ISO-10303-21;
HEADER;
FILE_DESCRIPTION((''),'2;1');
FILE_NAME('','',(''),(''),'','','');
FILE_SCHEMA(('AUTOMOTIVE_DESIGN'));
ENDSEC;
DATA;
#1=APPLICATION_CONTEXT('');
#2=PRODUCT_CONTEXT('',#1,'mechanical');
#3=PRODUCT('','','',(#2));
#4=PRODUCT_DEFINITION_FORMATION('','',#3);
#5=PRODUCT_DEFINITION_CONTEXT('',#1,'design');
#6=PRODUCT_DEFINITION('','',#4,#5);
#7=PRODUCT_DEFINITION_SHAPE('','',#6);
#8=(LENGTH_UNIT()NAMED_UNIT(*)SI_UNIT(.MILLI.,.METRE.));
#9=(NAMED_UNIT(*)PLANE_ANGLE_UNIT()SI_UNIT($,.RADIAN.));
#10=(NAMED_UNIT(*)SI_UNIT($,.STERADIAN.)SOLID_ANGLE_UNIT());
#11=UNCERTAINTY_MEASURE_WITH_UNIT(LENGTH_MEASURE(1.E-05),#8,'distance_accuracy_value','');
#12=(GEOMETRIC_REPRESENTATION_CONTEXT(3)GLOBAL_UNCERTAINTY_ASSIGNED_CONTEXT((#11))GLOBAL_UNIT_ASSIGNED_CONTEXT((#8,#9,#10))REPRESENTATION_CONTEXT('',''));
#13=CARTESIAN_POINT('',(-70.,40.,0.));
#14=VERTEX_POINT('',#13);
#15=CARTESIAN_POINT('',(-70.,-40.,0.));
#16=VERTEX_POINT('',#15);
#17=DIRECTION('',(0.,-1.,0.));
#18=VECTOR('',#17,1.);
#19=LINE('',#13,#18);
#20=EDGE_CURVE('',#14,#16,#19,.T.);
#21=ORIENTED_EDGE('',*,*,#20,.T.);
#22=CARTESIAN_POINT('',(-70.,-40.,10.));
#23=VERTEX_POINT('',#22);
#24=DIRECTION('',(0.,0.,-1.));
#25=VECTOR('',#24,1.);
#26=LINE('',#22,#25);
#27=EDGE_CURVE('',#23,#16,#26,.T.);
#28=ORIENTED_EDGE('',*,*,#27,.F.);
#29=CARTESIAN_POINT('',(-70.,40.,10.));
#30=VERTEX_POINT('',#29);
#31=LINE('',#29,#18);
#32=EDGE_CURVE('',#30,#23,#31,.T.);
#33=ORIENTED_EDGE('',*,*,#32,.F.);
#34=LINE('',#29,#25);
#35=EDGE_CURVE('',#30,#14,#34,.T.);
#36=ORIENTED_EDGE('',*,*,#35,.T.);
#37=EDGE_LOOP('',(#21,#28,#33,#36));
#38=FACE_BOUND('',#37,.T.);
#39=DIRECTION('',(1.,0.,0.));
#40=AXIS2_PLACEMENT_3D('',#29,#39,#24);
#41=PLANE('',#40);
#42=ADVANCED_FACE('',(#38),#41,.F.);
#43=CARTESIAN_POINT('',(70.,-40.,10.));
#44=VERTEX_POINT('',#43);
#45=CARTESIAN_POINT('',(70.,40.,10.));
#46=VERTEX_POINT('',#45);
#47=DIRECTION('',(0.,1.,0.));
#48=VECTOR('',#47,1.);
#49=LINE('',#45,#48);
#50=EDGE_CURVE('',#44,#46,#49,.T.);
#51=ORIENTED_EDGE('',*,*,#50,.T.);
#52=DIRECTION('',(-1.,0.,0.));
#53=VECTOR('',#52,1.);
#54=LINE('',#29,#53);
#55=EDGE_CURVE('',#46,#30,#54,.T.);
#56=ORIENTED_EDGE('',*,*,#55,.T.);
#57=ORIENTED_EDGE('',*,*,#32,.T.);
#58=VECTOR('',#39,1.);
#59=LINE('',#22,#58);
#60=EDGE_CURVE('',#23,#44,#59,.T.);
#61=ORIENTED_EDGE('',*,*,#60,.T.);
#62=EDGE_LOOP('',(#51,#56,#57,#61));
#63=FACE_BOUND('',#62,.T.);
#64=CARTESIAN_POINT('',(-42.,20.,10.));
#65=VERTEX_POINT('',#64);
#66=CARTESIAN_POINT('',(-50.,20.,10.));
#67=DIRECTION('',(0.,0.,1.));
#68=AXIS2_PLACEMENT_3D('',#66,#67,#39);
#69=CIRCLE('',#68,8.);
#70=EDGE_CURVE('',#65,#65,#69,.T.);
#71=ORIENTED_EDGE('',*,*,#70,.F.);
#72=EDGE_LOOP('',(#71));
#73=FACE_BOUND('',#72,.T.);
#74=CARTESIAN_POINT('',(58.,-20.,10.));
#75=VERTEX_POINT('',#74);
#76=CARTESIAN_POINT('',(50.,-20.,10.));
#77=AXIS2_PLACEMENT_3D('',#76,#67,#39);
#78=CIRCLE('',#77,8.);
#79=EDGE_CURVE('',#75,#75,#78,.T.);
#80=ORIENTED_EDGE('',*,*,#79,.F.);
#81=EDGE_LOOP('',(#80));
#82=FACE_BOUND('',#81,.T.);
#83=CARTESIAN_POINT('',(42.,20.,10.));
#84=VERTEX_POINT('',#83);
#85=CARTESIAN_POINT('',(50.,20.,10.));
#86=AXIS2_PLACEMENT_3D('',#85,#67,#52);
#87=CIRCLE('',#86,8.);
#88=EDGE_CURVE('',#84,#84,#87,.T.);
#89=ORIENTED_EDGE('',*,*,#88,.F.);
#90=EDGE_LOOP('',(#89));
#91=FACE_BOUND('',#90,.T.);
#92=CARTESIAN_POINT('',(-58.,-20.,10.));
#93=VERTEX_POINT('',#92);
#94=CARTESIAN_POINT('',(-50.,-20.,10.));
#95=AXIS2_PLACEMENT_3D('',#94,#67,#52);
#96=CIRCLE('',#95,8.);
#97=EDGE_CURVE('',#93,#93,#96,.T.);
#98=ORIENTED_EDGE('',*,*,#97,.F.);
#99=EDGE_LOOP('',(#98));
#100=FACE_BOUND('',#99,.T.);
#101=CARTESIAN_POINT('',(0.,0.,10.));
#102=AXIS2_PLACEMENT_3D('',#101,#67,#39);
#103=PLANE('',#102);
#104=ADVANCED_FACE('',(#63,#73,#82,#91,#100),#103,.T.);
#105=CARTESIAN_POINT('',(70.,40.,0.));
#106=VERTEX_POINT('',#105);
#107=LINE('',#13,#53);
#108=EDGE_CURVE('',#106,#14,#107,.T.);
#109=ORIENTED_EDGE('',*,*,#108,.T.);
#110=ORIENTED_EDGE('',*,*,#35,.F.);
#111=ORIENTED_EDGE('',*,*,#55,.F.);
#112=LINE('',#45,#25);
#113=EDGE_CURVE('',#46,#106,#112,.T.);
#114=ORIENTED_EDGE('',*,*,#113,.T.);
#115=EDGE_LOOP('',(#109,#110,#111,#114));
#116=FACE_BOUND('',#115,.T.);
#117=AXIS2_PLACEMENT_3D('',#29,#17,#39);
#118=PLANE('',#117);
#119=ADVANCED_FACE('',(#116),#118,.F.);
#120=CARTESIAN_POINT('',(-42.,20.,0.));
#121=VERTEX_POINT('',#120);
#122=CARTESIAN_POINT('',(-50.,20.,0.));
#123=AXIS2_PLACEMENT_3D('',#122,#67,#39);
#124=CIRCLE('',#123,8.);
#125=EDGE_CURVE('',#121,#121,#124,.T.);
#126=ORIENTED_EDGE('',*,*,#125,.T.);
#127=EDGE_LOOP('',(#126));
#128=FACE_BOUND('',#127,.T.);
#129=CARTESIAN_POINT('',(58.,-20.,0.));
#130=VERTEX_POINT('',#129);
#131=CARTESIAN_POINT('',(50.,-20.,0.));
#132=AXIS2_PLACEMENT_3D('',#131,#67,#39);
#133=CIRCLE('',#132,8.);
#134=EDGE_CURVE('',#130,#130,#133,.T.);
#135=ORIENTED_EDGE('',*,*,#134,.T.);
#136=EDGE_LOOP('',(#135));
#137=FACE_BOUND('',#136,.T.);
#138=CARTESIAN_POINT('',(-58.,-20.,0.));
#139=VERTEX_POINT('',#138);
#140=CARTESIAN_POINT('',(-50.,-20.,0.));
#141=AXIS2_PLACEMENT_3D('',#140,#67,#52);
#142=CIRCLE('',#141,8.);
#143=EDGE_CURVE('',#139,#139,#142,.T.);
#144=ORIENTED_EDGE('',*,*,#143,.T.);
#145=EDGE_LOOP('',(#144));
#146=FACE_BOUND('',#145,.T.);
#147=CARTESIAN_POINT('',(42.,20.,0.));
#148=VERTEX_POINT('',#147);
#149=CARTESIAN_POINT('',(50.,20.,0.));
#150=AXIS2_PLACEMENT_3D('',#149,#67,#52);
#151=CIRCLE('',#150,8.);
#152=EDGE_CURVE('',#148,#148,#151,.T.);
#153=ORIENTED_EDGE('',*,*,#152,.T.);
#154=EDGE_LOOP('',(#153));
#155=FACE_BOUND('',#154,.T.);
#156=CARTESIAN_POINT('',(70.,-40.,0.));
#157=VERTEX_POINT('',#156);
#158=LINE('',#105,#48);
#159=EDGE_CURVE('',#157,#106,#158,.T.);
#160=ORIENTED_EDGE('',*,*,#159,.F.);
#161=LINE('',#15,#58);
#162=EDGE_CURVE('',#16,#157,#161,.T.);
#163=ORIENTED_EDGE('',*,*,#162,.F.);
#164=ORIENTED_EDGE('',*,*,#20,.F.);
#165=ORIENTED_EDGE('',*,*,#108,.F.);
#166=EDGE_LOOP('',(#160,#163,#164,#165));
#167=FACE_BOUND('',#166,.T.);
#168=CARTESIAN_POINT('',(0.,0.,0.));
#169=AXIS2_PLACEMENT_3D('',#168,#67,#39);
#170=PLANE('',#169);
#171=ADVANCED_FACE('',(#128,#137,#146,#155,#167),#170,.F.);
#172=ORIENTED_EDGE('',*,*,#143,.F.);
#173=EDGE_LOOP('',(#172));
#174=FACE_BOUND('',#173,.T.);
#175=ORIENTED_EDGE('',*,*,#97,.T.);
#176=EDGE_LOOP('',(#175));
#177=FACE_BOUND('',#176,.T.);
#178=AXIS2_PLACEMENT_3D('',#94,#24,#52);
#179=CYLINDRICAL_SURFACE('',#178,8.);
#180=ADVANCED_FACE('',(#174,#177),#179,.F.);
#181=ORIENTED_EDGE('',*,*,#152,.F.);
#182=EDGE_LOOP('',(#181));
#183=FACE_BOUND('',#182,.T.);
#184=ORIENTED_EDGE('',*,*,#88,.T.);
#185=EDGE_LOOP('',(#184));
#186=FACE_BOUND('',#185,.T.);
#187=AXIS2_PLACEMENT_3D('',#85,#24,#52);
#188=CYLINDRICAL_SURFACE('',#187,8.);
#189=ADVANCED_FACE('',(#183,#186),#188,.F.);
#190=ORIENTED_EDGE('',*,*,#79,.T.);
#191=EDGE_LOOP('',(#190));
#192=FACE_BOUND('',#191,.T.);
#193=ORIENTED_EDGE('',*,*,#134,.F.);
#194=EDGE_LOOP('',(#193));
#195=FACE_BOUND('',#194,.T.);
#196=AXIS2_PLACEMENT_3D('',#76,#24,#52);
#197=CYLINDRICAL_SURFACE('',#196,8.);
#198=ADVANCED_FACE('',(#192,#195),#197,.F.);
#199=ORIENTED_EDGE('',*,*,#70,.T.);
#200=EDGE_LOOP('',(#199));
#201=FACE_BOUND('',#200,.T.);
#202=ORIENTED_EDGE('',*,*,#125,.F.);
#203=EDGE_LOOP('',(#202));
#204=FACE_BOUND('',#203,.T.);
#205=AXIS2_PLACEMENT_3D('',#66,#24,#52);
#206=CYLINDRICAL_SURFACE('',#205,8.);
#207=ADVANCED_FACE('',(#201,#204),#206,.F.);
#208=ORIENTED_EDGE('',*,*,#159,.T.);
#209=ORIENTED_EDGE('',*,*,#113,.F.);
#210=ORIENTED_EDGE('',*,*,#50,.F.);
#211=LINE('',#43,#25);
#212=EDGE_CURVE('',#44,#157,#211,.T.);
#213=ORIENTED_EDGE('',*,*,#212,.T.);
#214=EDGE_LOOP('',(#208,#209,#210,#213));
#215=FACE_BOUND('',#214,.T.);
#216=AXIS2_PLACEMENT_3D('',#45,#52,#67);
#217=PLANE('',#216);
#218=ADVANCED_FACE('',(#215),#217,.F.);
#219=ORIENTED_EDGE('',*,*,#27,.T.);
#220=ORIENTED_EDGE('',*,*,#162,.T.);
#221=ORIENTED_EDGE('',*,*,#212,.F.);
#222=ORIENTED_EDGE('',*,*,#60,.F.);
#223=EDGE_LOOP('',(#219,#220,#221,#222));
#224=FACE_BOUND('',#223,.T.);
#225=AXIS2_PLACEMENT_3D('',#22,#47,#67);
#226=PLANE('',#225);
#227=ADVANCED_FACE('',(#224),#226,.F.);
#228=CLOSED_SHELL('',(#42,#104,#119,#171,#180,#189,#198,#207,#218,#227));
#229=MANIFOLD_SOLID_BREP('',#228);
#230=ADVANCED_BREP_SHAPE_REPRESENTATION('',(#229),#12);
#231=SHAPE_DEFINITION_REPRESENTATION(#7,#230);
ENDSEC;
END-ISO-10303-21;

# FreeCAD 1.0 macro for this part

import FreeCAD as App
import Part
import Sketcher

V = App.Vector

doc = App.newDocument("Part")
body = doc.addObject("PartDesign::Body", "Body")

sketch1 = doc.addObject("Sketcher::SketchObject", "Sketch")
body.addObject(sketch1)
sketch1.AttachmentSupport = (doc.XY_Plane, [""])
sketch1.MapMode = "FlatFace"
sketch1.addGeometry(Part.LineSegment(V(-70, 40, 0), V(-70, -40, 0)), False)
sketch1.addGeometry(Part.LineSegment(V(-70, -40, 0), V(70, -40, 0)), False)
sketch1.addGeometry(Part.LineSegment(V(70, -40, 0), V(70, 40, 0)), False)
sketch1.addGeometry(Part.LineSegment(V(70, 40, 0), V(-70, 40, 0)), False)
sketch1.addGeometry(Part.Circle(V(-50, -20, 0), V(0, 0, 1), 8), False)
sketch1.addGeometry(Part.Circle(V(50, -20, 0), V(0, 0, 1), 8), False)
sketch1.addGeometry(Part.Circle(V(-50, 20, 0), V(0, 0, 1), 8), False)
sketch1.addGeometry(Part.Circle(V(50, 20, 0), V(0, 0, 1), 8), False)
sketch1.addConstraint(Sketcher.Constraint("Coincident", 0, 2, 1, 1))
sketch1.addConstraint(Sketcher.Constraint("Coincident", 1, 2, 2, 1))
sketch1.addConstraint(Sketcher.Constraint("Coincident", 2, 2, 3, 1))
sketch1.addConstraint(Sketcher.Constraint("Coincident", 3, 2, 0, 1))
sketch1.addConstraint(Sketcher.Constraint("Vertical", 0))
sketch1.addConstraint(Sketcher.Constraint("Horizontal", 1))
sketch1.addConstraint(Sketcher.Constraint("Vertical", 2))
sketch1.addConstraint(Sketcher.Constraint("Horizontal", 3))
sketch1.addConstraint(Sketcher.Constraint("Equal", 4, 5))
sketch1.addConstraint(Sketcher.Constraint("Equal", 5, 6))
sketch1.addConstraint(Sketcher.Constraint("Equal", 6, 7))
sketch1.addConstraint(Sketcher.Constraint("Symmetric", 5, 3, 6, 3, -1, 1))
sketch1.addConstraint(Sketcher.Constraint("Symmetric", 4, 3, 7, 3, -1, 1))
sketch1.addConstraint(Sketcher.Constraint("Symmetric", 0, 2, 2, 2, -1, 1))
sketch1.addConstraint(Sketcher.Constraint("Symmetric", 4, 3, 5, 3, -2))
sketch1.addConstraint(Sketcher.Constraint("Diameter", 4, 16.0))
sketch1.addConstraint(Sketcher.Constraint("DistanceX", 1, 1, 1, 2, 140.0))
sketch1.addConstraint(Sketcher.Constraint("DistanceY", 0, 2, 0, 1, 80.0))
sketch1.addConstraint(Sketcher.Constraint("DistanceX", 4, 3, -1, 1, 50.0))
sketch1.addConstraint(Sketcher.Constraint("DistanceY", 4, 3, -1, 1, 20.0))
pad1 = doc.addObject("PartDesign::Pad", "Pad")
body.addObject(pad1)
pad1.Profile = sketch1
pad1.Length = 10

doc.recompute()
